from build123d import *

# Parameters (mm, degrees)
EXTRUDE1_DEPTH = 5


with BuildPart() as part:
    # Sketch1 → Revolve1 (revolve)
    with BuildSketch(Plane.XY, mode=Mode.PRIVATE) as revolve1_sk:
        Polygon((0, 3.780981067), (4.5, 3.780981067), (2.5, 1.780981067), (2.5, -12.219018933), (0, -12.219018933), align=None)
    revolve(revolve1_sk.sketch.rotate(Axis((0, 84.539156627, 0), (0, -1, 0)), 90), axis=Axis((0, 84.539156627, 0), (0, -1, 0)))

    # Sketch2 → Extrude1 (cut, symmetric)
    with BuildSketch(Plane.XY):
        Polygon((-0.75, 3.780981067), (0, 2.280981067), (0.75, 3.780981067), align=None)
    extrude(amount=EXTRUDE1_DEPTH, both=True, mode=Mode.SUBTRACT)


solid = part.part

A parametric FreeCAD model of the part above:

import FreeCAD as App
import Part
import Sketcher
Q = App.Units.Quantity

doc = App.newDocument("Part")
params = doc.addObject("Spreadsheet::Sheet", "Params")
for row, (alias, value) in enumerate([
    ("sketch1_height", "16 mm"),
    ("sketch1_height2", "14 mm"),
    ("sketch1_width", "4.5 mm"),
    ("revolution_angle", "360 deg"),
    ("sketch2_width", "1.5 mm"),
    ("pocket1_length", "10 mm"),
], start=1):
    params.set(f"A{row}", alias)
    params.set(f"B{row}", "=" + value)
    params.setAlias(f"B{row}", alias)

body = doc.addObject("PartDesign::Body", "Body")

# Sketch on XY plane
sketch1 = body.newObject("Sketcher::SketchObject", "Sketch")
sketch1.AttachmentSupport = (doc.getObject("XY_Plane"), [""])
sketch1.MapMode = "FlatFace"
sketch1.addGeometry(Part.LineSegment(App.Vector(4.5, 3.8, 0), App.Vector(0, 3.8, 0)), False)
sketch1.addGeometry(Part.LineSegment(App.Vector(0, 3.8, 0), App.Vector(0, -12.2, 0)), False)
sketch1.addGeometry(Part.LineSegment(App.Vector(0, -12.2, 0), App.Vector(2.5, -12.2, 0)), False)
sketch1.addGeometry(Part.LineSegment(App.Vector(2.5, -12.2, 0), App.Vector(2.5, 1.8, 0)), False)
sketch1.addGeometry(Part.LineSegment(App.Vector(2.5, 1.8, 0), App.Vector(4.5, 3.8, 0)), False)
sketch1.addConstraint(Sketcher.Constraint("Coincident", 0, 2, 1, 1))
sketch1.addConstraint(Sketcher.Constraint("Coincident", 1, 2, 2, 1))
sketch1.addConstraint(Sketcher.Constraint("Coincident", 2, 2, 3, 1))
sketch1.addConstraint(Sketcher.Constraint("Coincident", 3, 2, 4, 1))
sketch1.addConstraint(Sketcher.Constraint("Coincident", 4, 2, 0, 1))
sketch1.addConstraint(Sketcher.Constraint("Horizontal", 0))
sketch1.addConstraint(Sketcher.Constraint("Vertical", 1))
sketch1.addConstraint(Sketcher.Constraint("Horizontal", 2))
sketch1.addConstraint(Sketcher.Constraint("Vertical", 3))
sketch1.addConstraint(Sketcher.Constraint("PointOnObject", 0, 2, -2))
sketch1.addConstraint(Sketcher.Constraint("DistanceY", 1, 2, 1, 1, Q("16 mm")))
sketch1.addConstraint(Sketcher.Constraint("DistanceY", 3, 1, 3, 2, Q("14 mm")))
sketch1.addConstraint(Sketcher.Constraint("Angle", 4, Q("45 deg")))
sketch1.addConstraint(Sketcher.Constraint("DistanceX", 0, 2, 0, 1, Q("4.5 mm")))
sketch1.addConstraint(Sketcher.Constraint("DistanceY", -1, 1, 0, 2, Q("3.780981 mm")))
sketch1.setExpression("Constraints[10]", "Params.sketch1_height")
sketch1.setExpression("Constraints[11]", "Params.sketch1_height2")
sketch1.setExpression("Constraints[13]", "Params.sketch1_width")
revolution = body.newObject("PartDesign::Revolution", "Revolution")
revolution.Profile = sketch1
revolution.ReferenceAxis = (sketch1, ["V_Axis"])
revolution.setExpression("Angle", "Params.revolution_angle")

# Sketch on XY plane
sketch2 = body.newObject("Sketcher::SketchObject", "Sketch001")
sketch2.AttachmentSupport = (doc.getObject("XY_Plane"), [""])
sketch2.MapMode = "FlatFace"
sketch2.addGeometry(Part.LineSegment(App.Vector(-0.8, 3.8, 0), App.Vector(0, 2.3, 0)), False)
sketch2.addGeometry(Part.LineSegment(App.Vector(0, 2.3, 0), App.Vector(0.8, 3.8, 0)), False)
sketch2.addGeometry(Part.LineSegment(App.Vector(0.8, 3.8, 0), App.Vector(-0.8, 3.8, 0)), False)
sketch2.addConstraint(Sketcher.Constraint("Coincident", 0, 2, 1, 1))
sketch2.addConstraint(Sketcher.Constraint("Coincident", 1, 2, 2, 1))
sketch2.addConstraint(Sketcher.Constraint("Coincident", 2, 2, 0, 1))
sketch2.addConstraint(Sketcher.Constraint("Horizontal", 2))
sketch2.addConstraint(Sketcher.Constraint("PointOnObject", 0, 2, -2))
sketch2.addConstraint(Sketcher.Constraint("Equal", 0, 1))
sketch2.addConstraint(Sketcher.Constraint("DistanceX", 2, 2, 2, 1, Q("1.5 mm")))
sketch2.addConstraint(Sketcher.Constraint("DistanceY", 0, 2, 1, 2, Q("1.5 mm")))
sketch2.addConstraint(Sketcher.Constraint("DistanceY", -1, 1, 0, 2, Q("2.280981 mm")))
sketch2.setExpression("Constraints[6]", "Params.sketch2_width")
pocket1 = body.newObject("PartDesign::Pocket", "Pocket")
pocket1.Profile = sketch2
pocket1.setExpression("Length", "Params.pocket1_length")
pocket1.Midplane = True

doc.recompute()
